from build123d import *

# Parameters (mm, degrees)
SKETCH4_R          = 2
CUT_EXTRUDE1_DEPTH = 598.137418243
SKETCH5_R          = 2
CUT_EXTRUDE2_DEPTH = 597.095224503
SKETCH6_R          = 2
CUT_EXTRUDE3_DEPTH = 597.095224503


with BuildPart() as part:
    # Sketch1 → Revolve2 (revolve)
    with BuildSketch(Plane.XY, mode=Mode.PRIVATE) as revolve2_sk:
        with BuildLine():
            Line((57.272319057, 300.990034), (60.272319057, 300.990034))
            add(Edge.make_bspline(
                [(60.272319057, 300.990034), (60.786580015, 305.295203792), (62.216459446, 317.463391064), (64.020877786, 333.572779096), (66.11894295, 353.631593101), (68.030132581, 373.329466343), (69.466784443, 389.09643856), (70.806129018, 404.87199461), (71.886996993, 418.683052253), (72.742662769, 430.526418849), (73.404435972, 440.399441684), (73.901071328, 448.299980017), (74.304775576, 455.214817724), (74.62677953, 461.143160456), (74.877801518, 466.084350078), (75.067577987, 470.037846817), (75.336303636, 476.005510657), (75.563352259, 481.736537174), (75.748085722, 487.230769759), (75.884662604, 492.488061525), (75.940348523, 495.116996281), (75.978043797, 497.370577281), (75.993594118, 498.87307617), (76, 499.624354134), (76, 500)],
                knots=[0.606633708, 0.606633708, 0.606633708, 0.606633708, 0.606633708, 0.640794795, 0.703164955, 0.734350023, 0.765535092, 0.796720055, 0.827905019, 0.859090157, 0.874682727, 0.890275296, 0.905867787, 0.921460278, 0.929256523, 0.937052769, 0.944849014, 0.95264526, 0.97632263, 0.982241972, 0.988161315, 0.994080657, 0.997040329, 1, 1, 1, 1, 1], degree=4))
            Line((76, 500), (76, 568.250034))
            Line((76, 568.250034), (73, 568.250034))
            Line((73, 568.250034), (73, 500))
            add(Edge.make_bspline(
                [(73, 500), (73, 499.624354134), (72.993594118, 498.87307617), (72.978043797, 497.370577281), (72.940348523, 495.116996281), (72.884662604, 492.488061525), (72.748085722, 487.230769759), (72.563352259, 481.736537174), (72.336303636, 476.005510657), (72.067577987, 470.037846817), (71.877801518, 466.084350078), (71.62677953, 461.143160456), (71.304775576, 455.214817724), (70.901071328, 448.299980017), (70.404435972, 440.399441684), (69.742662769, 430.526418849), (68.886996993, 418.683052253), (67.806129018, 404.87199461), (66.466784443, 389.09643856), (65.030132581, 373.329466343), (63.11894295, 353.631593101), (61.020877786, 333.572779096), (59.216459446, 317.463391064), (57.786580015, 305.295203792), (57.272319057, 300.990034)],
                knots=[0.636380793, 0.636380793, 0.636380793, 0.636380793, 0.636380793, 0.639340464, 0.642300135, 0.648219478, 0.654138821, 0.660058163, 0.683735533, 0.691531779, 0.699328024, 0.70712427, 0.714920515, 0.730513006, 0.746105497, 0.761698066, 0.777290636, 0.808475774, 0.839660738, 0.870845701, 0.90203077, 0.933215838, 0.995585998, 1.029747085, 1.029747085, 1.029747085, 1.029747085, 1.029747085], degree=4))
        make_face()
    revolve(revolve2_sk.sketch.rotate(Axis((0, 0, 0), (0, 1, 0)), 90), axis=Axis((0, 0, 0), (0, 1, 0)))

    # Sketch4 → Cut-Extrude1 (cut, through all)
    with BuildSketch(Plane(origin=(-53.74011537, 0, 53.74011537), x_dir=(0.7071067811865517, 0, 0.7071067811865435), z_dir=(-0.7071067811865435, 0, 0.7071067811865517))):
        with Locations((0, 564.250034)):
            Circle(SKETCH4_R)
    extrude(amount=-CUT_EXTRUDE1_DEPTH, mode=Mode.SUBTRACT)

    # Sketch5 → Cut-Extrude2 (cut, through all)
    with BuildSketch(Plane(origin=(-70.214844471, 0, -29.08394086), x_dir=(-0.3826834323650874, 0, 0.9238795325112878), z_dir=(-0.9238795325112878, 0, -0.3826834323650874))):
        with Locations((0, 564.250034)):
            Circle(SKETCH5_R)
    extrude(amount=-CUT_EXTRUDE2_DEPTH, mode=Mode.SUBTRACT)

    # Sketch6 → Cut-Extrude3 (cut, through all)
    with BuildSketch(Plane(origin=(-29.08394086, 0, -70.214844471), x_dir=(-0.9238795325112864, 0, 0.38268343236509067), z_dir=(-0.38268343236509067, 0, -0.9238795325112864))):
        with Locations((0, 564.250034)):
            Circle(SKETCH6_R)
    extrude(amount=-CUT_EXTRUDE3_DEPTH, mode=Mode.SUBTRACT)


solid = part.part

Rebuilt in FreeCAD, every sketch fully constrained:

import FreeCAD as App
import Part
import Sketcher

V = App.Vector

doc = App.newDocument("Part")
params = doc.addObject("Spreadsheet::Sheet", "Params")
for row, (alias, value) in enumerate([
    ("revolution_angle", "360 deg"),
    ("sketch2_diameter", "4 mm"),
    ("sketch3_diameter", "4 mm"),
    ("sketch4_diameter", "4 mm"),
], start=1):
    params.set(f"A{row}", alias)
    params.set(f"B{row}", "=" + value)
    params.setAlias(f"B{row}", alias)

body = doc.addObject("PartDesign::Body", "Body")

# Sketch on XY plane
sketch1 = body.newObject("Sketcher::SketchObject", "Sketch")
sketch1.AttachmentSupport = (doc.getObject("XY_Plane"), [""])
sketch1.MapMode = "FlatFace"
sketch1.addGeometry([
    Part.LineSegment(V(57.272319, 300.990034, 0), V(60.272319, 300.990034, 0)),  # 0
    Part.BSplineCurve([V(60.272319, 300.990034, 0), V(60.78658, 305.295204, 0), V(62.216459, 317.463391, 0), V(64.020878, 333.572779, 0), V(66.118943, 353.631593, 0), V(68.030133, 373.329466, 0), V(69.466784, 389.096439, 0), V(70.806129, 404.871995, 0), V(71.886997, 418.683052, 0), V(72.742663, 430.526419, 0), V(73.404436, 440.399442, 0), V(73.901071, 448.29998, 0), V(74.304776, 455.214818, 0), V(74.62678, 461.14316, 0), V(74.877802, 466.08435, 0), V(75.067578, 470.037847, 0), V(75.336304, 476.005511, 0), V(75.563352, 481.736537, 0), V(75.748086, 487.23077, 0), V(75.884663, 492.488062, 0), V(75.940349, 495.116996, 0), V(75.978044, 497.370577, 0), V(75.993594, 498.873076, 0), V(76, 499.624354, 0), V(76, 500, 0)], [5, 1, 1, 1, 1, 1, 1, 1, 1, 1, 1, 1, 1, 1, 1, 1, 1, 1, 1, 1, 1, 5], [0.606633708, 0.640794795, 0.703164955, 0.734350023, 0.765535092, 0.796720055, 0.827905019, 0.859090157, 0.874682727, 0.890275296, 0.905867787, 0.921460278, 0.929256523, 0.937052769, 0.944849014, 0.95264526, 0.97632263, 0.982241972, 0.988161315, 0.994080657, 0.997040329, 1], False, 4, [1, 1, 1, 1, 1, 1, 1, 1, 1, 1, 1, 1, 1, 1, 1, 1, 1, 1, 1, 1, 1, 1, 1, 1, 1], False),  # 1
    Part.LineSegment(V(76, 500, 0), V(76, 568.250034, 0)),  # 2
    Part.LineSegment(V(76, 568.250034, 0), V(73, 568.250034, 0)),  # 3
    Part.LineSegment(V(73, 568.250034, 0), V(73, 500, 0)),  # 4
    Part.BSplineCurve([V(73, 500, 0), V(73, 499.624354, 0), V(72.993594, 498.873076, 0), V(72.978044, 497.370577, 0), V(72.940349, 495.116996, 0), V(72.884663, 492.488062, 0), V(72.748086, 487.23077, 0), V(72.563352, 481.736537, 0), V(72.336304, 476.005511, 0), V(72.067578, 470.037847, 0), V(71.877802, 466.08435, 0), V(71.62678, 461.14316, 0), V(71.304776, 455.214818, 0), V(70.901071, 448.29998, 0), V(70.404436, 440.399442, 0), V(69.742663, 430.526419, 0), V(68.886997, 418.683052, 0), V(67.806129, 404.871995, 0), V(66.466784, 389.096439, 0), V(65.030133, 373.329466, 0), V(63.118943, 353.631593, 0), V(61.020878, 333.572779, 0), V(59.216459, 317.463391, 0), V(57.78658, 305.295204, 0), V(57.272319, 300.990034, 0)], [5, 1, 1, 1, 1, 1, 1, 1, 1, 1, 1, 1, 1, 1, 1, 1, 1, 1, 1, 1, 1, 5], [0.636380793, 0.639340464, 0.642300135, 0.648219478, 0.654138821, 0.660058163, 0.683735533, 0.691531779, 0.699328024, 0.70712427, 0.714920515, 0.730513006, 0.746105497, 0.761698066, 0.777290636, 0.808475774, 0.839660738, 0.870845701, 0.90203077, 0.933215838, 0.995585998, 1.029747085], False, 4, [1, 1, 1, 1, 1, 1, 1, 1, 1, 1, 1, 1, 1, 1, 1, 1, 1, 1, 1, 1, 1, 1, 1, 1, 1], False),  # 5
], False)
sketch1.addConstraint([
    Sketcher.Constraint("Block", 1),
    Sketcher.Constraint("Block", 5),
    Sketcher.Constraint("Coincident", 0, 2, 1, 1),
    Sketcher.Constraint("Coincident", 1, 2, 2, 1),
    Sketcher.Constraint("Coincident", 2, 2, 3, 1),
    Sketcher.Constraint("Coincident", 3, 2, 4, 1),
    Sketcher.Constraint("Coincident", 4, 2, 5, 1),
    Sketcher.Constraint("Coincident", 5, 2, 0, 1),
    Sketcher.Constraint("Vertical", 2),
    Sketcher.Constraint("Horizontal", 3),
    Sketcher.Constraint("Vertical", 4),
    Sketcher.Constraint("DistanceY", 0, 2, 2, 2, 267.26),
])
revolution = body.newObject("PartDesign::Revolution", "Revolution")
revolution.Profile = sketch1
revolution.ReferenceAxis = (sketch1, ["V_Axis"])
revolution.setExpression("Angle", "Params.revolution_angle")

# Sketch on an angled plane
sketch2 = body.newObject("Sketcher::SketchObject", "Sketch001")
sketch2.Placement = App.Placement(V(-53.740115, 0, 53.740115), App.Rotation(V(0.707106781, 0, 0.707106781), V(0, 0.999999999, 0), V(-0.707106781, 0, 0.707106781), "ZXY"))
sketch2.addGeometry(Part.Circle(V(0, 564.250033, 0), V(0, 0, 1), 2), False)
sketch2.addConstraint([
    Sketcher.Constraint("PointOnObject", 0, 3, -2),
    Sketcher.Constraint("Diameter", 0, 4.0),
    Sketcher.Constraint("DistanceY", -1, 1, 0, 3, 564.250033),
])
sketch2.setExpression("Constraints[1]", "Params.sketch2_diameter")
pocket1 = body.newObject("PartDesign::Pocket", "Pocket")
pocket1.Profile = sketch2
pocket1.Type = "ThroughAll"

# Sketch on an angled plane
sketch3 = body.newObject("Sketcher::SketchObject", "Sketch002")
sketch3.Placement = App.Placement(V(-70.214844, 0, -29.083941), App.Rotation(V(-0.382683432, 0, 0.923879533), V(0, 1.000000001, 0), V(-0.923879533, 0, -0.382683432), "ZXY"))
sketch3.addGeometry(Part.Circle(V(0, 564.250035, 0), V(0, 0, 1), 2), False)
sketch3.addConstraint([
    Sketcher.Constraint("PointOnObject", 0, 3, -2),
    Sketcher.Constraint("Diameter", 0, 4.0),
    Sketcher.Constraint("DistanceY", -1, 1, 0, 3, 564.250035),
])
sketch3.setExpression("Constraints[1]", "Params.sketch3_diameter")
pocket2 = body.newObject("PartDesign::Pocket", "Pocket001")
pocket2.Profile = sketch3
pocket2.Type = "ThroughAll"

# Sketch on an angled plane
sketch4 = body.newObject("Sketcher::SketchObject", "Sketch003")
sketch4.Placement = App.Placement(V(-29.083941, 0, -70.214844), App.Rotation(V(-0.923879533, 0, 0.382683432), V(0, 1.000000001, 0), V(-0.382683432, 0, -0.923879533), "ZXY"))
sketch4.addGeometry(Part.Circle(V(0, 564.250035, 0), V(0, 0, 1), 2), False)
sketch4.addConstraint([
    Sketcher.Constraint("PointOnObject", 0, 3, -2),
    Sketcher.Constraint("Diameter", 0, 4.0),
    Sketcher.Constraint("DistanceY", -1, 1, 0, 3, 564.250035),
])
sketch4.setExpression("Constraints[1]", "Params.sketch4_diameter")
pocket3 = body.newObject("PartDesign::Pocket", "Pocket002")
pocket3.Profile = sketch4
pocket3.Type = "ThroughAll"

doc.recompute()
